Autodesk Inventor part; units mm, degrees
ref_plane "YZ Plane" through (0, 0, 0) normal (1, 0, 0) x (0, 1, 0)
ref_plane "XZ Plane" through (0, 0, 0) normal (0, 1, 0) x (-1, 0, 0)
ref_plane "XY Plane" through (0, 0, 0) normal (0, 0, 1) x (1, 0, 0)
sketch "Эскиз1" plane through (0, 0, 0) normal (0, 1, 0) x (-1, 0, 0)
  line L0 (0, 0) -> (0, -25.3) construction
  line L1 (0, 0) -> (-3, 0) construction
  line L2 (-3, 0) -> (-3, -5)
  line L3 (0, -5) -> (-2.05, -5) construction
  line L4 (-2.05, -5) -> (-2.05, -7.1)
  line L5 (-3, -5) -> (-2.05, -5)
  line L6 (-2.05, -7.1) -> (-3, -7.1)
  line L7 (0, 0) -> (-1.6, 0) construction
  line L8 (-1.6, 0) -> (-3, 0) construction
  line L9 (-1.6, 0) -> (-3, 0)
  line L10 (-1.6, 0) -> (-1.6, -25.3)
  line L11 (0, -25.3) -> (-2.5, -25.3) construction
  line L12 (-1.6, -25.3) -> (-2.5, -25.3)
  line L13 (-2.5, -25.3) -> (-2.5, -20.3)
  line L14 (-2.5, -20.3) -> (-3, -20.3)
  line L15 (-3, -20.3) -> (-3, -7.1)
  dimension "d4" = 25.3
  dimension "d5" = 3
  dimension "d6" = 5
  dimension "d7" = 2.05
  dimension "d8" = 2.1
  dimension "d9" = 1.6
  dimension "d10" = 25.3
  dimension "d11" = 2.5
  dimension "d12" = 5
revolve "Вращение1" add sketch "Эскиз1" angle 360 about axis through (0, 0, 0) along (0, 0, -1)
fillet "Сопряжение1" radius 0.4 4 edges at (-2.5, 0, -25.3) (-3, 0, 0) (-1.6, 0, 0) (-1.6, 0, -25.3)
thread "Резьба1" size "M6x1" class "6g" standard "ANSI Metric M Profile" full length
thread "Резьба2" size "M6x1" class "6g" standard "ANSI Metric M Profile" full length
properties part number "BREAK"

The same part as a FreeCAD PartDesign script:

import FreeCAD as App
import Part
import Sketcher

V = App.Vector


def edges_at(feature, points):
    """Names of the edges that pass closest to the given points."""
    edges = feature.Shape.Edges
    near = lambda p: min(range(len(edges)), key=lambda i: edges[i].distToShape(Part.Vertex(*p))[0])
    return sorted({f"Edge{near(p) + 1}" for p in points})


def add_polygon(sketch, points):
    """Adds a closed chain of lines whose ends are joined by coincident constraints."""
    first, n = sketch.GeometryCount, len(points)
    for a, b in zip(points, points[1:] + points[:1]):
        sketch.addGeometry(Part.LineSegment(App.Vector(*a, 0), App.Vector(*b, 0)), False)
    for i in range(n):
        sketch.addConstraint(Sketcher.Constraint("Coincident", first + i, 2, first + (i + 1) % n, 1))

doc = App.newDocument("Part")
body = doc.addObject("PartDesign::Body", "Body")

# Sketch on XZ plane
sketch1 = body.newObject("Sketcher::SketchObject", "Sketch")
sketch1.AttachmentSupport = (doc.getObject("XZ_Plane"), [""])
sketch1.MapMode = "FlatFace"
add_polygon(sketch1, [(1.6, 0), (3, 0), (3, -5), (2.05, -5), (2.05, -7.1), (3, -7.1), (3, -20.3), (2.5, -20.3), (2.5, -25.3), (1.6, -25.3)])  # lines 0-9
sketch1.addConstraint([
    Sketcher.Constraint("Horizontal", 0),
    Sketcher.Constraint("Vertical", 1),
    Sketcher.Constraint("Horizontal", 2),
    Sketcher.Constraint("Vertical", 3),
    Sketcher.Constraint("Horizontal", 4),
    Sketcher.Constraint("Vertical", 5),
    Sketcher.Constraint("Horizontal", 6),
    Sketcher.Constraint("Vertical", 7),
    Sketcher.Constraint("Horizontal", 8),
    Sketcher.Constraint("Vertical", 9),
    Sketcher.Constraint("PointOnObject", 0, 2, -1),
    Sketcher.Constraint("Vertical", 1, 2, 4, 2),
    Sketcher.Constraint("Equal", 1, 7),
    Sketcher.Constraint("DistanceY", 1, 2, 1, 1, 5.0),
    Sketcher.Constraint("DistanceY", 3, 2, 3, 1, 2.1),
    Sketcher.Constraint("DistanceY", 9, 1, 9, 2, 25.3),
    Sketcher.Constraint("DistanceX", -1, 1, 0, 2, 3.0),
    Sketcher.Constraint("DistanceX", -1, 1, 6, 2, 2.5),
    Sketcher.Constraint("DistanceX", -1, 1, 8, 2, 1.6),
    Sketcher.Constraint("DistanceX", -1, 1, 2, 2, 2.05),
])
revolution = body.newObject("PartDesign::Revolution", "Revolution")
revolution.Profile = sketch1
revolution.ReferenceAxis = (sketch1, ["V_Axis"])
revolution.Angle = 360
doc.recompute()

fillet = body.newObject("PartDesign::Fillet", "Fillet")
fillet.Base = (revolution, edges_at(revolution, [
    (-2.5, 0, -25.3),
    (-3, 0, 0),
    (-1.6, 0, 0),
    (-1.6, 0, -25.3),
]))
fillet.Radius = 0.4

doc.recompute()
